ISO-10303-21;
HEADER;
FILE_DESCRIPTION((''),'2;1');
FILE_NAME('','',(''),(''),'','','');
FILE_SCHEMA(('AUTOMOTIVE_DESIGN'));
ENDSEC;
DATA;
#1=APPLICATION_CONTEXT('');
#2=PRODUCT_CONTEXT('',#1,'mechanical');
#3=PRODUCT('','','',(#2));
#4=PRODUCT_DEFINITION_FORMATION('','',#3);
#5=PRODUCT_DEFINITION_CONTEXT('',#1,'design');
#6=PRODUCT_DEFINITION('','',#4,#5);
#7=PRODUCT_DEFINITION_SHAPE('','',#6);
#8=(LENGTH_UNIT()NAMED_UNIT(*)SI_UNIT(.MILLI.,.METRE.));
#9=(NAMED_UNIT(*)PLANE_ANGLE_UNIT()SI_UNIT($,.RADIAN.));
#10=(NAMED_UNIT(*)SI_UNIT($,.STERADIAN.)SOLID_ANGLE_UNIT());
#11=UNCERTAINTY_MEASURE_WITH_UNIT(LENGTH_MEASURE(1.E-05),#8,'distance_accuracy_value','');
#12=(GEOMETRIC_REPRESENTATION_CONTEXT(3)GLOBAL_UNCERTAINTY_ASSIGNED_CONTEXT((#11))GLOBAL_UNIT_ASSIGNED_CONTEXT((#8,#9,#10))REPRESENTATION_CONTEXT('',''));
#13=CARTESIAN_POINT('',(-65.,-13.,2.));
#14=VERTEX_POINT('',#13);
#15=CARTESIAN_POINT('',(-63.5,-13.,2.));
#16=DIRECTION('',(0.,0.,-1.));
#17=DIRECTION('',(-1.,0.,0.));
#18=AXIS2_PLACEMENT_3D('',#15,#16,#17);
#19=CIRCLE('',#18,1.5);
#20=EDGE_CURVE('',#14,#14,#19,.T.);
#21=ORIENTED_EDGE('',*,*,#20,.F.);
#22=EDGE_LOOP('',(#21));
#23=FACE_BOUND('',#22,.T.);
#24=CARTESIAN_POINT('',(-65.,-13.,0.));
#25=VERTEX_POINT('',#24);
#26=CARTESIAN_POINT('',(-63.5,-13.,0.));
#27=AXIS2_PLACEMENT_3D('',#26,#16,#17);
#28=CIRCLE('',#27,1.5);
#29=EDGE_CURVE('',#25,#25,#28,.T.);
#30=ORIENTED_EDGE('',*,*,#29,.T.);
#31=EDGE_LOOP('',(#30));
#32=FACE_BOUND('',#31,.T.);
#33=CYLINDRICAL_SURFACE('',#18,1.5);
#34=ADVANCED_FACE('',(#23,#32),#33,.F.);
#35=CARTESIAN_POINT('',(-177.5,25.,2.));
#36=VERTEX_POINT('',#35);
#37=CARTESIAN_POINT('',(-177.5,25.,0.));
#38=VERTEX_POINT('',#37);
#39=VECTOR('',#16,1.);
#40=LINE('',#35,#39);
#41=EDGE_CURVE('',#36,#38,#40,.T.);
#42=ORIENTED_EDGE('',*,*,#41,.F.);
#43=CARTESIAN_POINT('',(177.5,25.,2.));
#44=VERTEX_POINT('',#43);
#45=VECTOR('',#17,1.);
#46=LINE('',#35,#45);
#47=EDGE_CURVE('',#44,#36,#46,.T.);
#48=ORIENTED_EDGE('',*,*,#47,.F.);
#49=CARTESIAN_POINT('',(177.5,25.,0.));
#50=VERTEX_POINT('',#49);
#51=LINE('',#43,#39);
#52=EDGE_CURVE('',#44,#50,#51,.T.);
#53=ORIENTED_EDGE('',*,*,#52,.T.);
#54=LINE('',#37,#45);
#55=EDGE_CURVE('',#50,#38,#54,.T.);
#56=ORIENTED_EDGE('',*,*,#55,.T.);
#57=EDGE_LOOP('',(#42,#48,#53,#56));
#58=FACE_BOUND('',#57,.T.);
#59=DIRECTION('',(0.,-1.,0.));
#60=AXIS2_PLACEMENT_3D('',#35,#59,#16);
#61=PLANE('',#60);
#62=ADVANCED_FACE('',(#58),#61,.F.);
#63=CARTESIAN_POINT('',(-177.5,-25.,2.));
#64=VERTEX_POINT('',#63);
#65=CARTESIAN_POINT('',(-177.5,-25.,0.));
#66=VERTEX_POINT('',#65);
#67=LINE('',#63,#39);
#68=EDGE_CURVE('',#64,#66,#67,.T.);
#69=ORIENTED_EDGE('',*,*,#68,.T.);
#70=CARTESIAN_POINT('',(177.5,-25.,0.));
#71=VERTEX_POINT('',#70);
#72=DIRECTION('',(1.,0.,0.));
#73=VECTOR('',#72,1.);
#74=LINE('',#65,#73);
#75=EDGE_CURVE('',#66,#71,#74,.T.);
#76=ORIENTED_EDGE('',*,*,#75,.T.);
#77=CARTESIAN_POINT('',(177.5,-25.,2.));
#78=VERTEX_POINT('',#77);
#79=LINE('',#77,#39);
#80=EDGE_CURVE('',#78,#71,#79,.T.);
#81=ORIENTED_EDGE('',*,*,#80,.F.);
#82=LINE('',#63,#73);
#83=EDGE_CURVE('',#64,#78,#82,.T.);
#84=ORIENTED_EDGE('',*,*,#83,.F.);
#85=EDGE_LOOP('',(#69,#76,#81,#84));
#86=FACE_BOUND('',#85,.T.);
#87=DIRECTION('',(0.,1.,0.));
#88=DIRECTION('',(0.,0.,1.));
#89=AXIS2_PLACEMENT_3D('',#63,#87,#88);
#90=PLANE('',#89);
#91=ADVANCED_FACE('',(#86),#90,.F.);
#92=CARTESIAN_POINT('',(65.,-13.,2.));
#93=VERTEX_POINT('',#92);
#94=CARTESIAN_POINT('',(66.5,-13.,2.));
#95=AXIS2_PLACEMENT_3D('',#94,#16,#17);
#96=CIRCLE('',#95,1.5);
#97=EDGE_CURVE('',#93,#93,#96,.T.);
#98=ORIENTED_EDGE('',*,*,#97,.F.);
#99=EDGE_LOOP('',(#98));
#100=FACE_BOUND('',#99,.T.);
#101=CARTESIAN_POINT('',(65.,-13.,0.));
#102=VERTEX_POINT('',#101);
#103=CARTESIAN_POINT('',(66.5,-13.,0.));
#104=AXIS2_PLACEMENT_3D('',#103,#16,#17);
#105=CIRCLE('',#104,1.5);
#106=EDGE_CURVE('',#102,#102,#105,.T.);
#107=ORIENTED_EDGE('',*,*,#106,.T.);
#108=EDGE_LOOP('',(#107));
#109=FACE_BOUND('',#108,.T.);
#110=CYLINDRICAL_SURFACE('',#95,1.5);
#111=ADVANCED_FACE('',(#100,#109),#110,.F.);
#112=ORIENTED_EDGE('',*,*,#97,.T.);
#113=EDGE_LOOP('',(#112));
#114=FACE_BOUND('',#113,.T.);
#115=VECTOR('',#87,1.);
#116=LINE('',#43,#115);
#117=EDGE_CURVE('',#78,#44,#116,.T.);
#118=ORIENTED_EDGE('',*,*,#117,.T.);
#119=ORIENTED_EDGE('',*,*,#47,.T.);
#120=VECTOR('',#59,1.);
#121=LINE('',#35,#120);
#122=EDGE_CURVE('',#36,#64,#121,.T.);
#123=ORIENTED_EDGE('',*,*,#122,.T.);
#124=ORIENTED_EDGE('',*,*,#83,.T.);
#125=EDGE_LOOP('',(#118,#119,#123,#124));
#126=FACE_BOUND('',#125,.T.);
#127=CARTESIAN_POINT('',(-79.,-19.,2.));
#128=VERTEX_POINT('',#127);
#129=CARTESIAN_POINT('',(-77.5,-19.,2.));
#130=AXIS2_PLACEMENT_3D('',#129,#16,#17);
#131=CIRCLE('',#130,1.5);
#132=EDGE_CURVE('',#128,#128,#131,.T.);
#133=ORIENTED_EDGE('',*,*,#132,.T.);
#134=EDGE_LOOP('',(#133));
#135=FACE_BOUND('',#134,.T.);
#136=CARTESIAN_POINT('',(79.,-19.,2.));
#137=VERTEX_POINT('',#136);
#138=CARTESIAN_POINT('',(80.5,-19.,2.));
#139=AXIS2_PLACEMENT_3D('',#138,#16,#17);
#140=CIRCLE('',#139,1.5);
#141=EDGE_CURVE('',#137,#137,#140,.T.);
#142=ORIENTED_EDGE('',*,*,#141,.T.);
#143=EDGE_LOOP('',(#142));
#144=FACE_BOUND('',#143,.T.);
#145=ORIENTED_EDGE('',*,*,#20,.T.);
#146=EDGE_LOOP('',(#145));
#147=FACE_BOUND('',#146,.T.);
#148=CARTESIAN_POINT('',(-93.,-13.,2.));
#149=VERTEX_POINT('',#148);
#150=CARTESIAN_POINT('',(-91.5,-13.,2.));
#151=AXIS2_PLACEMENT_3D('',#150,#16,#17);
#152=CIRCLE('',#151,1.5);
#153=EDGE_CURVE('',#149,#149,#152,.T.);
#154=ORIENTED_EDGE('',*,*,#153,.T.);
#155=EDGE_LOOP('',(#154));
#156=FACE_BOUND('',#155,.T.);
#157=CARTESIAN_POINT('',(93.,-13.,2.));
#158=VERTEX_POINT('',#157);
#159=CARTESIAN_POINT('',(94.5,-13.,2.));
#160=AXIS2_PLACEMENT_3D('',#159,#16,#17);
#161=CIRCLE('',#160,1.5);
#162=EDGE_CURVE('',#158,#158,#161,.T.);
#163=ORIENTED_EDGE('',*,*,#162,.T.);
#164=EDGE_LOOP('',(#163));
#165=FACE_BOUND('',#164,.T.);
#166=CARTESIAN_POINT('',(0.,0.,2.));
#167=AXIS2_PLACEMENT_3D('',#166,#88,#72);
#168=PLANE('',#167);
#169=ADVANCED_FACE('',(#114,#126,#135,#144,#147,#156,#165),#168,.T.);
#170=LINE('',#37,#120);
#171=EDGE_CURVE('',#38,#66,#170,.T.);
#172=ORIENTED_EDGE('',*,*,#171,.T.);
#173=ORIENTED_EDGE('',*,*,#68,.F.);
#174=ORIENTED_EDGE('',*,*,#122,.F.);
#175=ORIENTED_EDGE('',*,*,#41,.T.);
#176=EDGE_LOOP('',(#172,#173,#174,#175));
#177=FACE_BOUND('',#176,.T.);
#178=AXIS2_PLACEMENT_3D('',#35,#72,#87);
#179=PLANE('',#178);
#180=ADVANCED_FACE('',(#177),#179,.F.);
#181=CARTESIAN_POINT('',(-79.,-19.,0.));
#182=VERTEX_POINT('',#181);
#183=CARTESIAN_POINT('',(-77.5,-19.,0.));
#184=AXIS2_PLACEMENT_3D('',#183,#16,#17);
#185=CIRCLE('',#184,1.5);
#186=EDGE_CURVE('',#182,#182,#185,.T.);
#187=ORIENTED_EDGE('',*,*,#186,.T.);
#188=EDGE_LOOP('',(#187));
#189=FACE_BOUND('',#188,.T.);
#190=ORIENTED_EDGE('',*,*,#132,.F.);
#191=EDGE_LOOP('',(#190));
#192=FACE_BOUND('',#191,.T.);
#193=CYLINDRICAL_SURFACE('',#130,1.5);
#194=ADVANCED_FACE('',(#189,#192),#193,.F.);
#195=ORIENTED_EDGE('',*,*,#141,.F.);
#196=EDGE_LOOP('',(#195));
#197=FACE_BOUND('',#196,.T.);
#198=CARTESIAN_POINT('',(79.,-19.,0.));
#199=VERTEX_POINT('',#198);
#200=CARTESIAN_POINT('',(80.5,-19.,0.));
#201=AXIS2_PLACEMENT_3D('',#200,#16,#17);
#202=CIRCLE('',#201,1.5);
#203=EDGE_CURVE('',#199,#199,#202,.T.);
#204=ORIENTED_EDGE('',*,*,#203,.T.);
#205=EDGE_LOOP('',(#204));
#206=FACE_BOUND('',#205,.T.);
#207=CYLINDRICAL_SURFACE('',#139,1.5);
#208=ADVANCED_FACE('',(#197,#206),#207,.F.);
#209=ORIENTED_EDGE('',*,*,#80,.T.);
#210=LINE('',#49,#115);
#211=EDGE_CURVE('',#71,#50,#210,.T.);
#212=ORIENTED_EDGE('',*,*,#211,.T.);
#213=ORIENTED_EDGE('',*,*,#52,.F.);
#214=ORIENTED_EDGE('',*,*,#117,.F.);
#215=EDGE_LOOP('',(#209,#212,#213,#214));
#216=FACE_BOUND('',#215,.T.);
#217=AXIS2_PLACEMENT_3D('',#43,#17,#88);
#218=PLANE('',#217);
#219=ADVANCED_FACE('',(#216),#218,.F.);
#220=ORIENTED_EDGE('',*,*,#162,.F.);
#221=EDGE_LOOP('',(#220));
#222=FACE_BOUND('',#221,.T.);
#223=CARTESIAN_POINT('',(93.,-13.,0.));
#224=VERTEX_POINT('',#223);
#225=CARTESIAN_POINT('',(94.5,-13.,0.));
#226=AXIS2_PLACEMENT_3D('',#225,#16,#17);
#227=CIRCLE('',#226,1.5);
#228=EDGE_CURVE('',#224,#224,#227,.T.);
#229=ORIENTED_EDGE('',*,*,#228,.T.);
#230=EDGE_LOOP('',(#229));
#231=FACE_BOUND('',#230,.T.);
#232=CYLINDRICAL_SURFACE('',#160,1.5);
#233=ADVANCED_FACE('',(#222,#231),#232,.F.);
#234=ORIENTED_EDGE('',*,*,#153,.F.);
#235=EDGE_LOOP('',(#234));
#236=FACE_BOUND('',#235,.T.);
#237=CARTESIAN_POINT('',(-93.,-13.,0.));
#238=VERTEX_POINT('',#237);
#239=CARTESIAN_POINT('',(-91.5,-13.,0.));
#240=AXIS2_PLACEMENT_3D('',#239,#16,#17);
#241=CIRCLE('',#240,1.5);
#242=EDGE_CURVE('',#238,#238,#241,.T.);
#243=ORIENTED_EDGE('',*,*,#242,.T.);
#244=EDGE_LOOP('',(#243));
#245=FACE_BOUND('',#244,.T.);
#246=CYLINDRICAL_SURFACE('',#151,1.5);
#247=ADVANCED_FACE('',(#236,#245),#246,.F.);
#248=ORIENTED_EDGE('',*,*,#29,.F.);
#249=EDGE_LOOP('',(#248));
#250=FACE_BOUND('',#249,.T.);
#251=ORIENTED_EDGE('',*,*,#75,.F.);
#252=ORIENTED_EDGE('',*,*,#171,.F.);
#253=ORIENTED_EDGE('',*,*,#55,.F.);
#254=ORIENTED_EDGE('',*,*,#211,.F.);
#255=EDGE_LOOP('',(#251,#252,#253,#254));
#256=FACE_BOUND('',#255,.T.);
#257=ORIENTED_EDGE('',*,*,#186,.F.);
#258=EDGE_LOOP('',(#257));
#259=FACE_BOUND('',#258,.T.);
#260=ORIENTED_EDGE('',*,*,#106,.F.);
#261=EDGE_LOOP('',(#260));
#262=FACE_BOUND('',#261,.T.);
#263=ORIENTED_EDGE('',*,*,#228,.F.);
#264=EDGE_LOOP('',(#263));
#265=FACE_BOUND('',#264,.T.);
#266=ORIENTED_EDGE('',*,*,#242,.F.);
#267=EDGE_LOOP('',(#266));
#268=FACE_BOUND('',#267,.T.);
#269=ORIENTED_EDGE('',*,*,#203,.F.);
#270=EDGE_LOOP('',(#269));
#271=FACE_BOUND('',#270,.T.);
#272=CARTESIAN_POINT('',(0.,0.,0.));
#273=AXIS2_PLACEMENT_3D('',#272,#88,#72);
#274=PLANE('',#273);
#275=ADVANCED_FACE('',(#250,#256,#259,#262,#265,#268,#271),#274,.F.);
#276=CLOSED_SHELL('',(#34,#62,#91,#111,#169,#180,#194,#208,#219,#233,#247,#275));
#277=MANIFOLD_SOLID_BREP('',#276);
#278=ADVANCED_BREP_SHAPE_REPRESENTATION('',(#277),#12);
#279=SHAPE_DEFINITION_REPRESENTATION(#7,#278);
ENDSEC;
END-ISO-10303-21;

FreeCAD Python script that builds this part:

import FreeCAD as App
import Part
import Sketcher
Q = App.Units.Quantity


def add_polygon(sketch, points):
    """Adds a closed chain of lines whose ends are joined by coincident constraints."""
    first, n = sketch.GeometryCount, len(points)
    for a, b in zip(points, points[1:] + points[:1]):
        sketch.addGeometry(Part.LineSegment(App.Vector(*a, 0), App.Vector(*b, 0)), False)
    for i in range(n):
        sketch.addConstraint(Sketcher.Constraint("Coincident", first + i, 2, first + (i + 1) % n, 1))

doc = App.newDocument("Part")
body = doc.addObject("PartDesign::Body", "Body")

# Sketch on XY plane
sketch1 = body.newObject("Sketcher::SketchObject", "Sketch")
sketch1.AttachmentSupport = (doc.getObject("XY_Plane"), [""])
sketch1.MapMode = "FlatFace"
add_polygon(sketch1, [(-177.5, 25), (-177.5, -25), (177.5, -25), (177.5, 25)])  # lines 0-3
sketch1.addConstraint([
    Sketcher.Constraint("Vertical", 0),
    Sketcher.Constraint("Horizontal", 1),
    Sketcher.Constraint("Vertical", 2),
    Sketcher.Constraint("Horizontal", 3),
    Sketcher.Constraint("Symmetric", 0, 2, 2, 2, -1, 1),
    Sketcher.Constraint("DistanceX", 1, 1, 1, 2, Q("355 mm")),
    Sketcher.Constraint("DistanceY", 0, 2, 0, 1, Q("50 mm")),
])
pad1 = body.newObject("PartDesign::Pad", "Pad")
pad1.Profile = sketch1
pad1.Length = 2

# Sketch on XY plane
sketch2 = body.newObject("Sketcher::SketchObject", "Sketch001")
sketch2.AttachmentSupport = (doc.getObject("XY_Plane"), [""])
sketch2.MapMode = "FlatFace"
sketch2.addGeometry([
    Part.Circle(App.Vector(94.5, -13, 0), App.Vector(0, 0, 1), 1.5),  # 0
    Part.Circle(App.Vector(80.5, -19, 0), App.Vector(0, 0, 1), 1.5),  # 1
    Part.Circle(App.Vector(66.5, -13, 0), App.Vector(0, 0, 1), 1.5),  # 2
    Part.Circle(App.Vector(-77.5, -19, 0), App.Vector(0, 0, 1), 1.5),  # 3
    Part.Circle(App.Vector(-63.5, -13, 0), App.Vector(0, 0, 1), 1.5),  # 4
    Part.Circle(App.Vector(-91.5, -13, 0), App.Vector(0, 0, 1), 1.5),  # 5
], False)
sketch2.addConstraint([
    Sketcher.Constraint("Equal", 0, 1),
    Sketcher.Constraint("Equal", 1, 2),
    Sketcher.Constraint("Equal", 2, 3),
    Sketcher.Constraint("Equal", 3, 4),
    Sketcher.Constraint("Equal", 4, 5),
    Sketcher.Constraint("Horizontal", 0, 3, 2, 3),
    Sketcher.Constraint("Horizontal", 1, 3, 3, 3),
    Sketcher.Constraint("Horizontal", 2, 3, 4, 3),
    Sketcher.Constraint("Horizontal", 4, 3, 5, 3),
    Sketcher.Constraint("Diameter", 0, Q("3 mm")),
    Sketcher.Constraint("DistanceY", 0, 3, -1, 1, Q("13 mm")),
    Sketcher.Constraint("DistanceY", 1, 3, -1, 1, Q("19 mm")),
    Sketcher.Constraint("DistanceX", 1, 3, 0, 3, Q("14 mm")),
    Sketcher.Constraint("DistanceX", 2, 3, 1, 3, Q("14 mm")),
    Sketcher.Constraint("DistanceX", 3, 3, 2, 3, Q("144 mm")),
    Sketcher.Constraint("DistanceX", 3, 3, 4, 3, Q("14 mm")),
    Sketcher.Constraint("DistanceX", 5, 3, 3, 3, Q("14 mm")),
    Sketcher.Constraint("DistanceX", -1, 1, 0, 3, Q("94.5 mm")),
])
pocket1 = body.newObject("PartDesign::Pocket", "Pocket")
pocket1.Profile = sketch2
pocket1.Type = "ThroughAll"
pocket1.Reversed = True

doc.recompute()
